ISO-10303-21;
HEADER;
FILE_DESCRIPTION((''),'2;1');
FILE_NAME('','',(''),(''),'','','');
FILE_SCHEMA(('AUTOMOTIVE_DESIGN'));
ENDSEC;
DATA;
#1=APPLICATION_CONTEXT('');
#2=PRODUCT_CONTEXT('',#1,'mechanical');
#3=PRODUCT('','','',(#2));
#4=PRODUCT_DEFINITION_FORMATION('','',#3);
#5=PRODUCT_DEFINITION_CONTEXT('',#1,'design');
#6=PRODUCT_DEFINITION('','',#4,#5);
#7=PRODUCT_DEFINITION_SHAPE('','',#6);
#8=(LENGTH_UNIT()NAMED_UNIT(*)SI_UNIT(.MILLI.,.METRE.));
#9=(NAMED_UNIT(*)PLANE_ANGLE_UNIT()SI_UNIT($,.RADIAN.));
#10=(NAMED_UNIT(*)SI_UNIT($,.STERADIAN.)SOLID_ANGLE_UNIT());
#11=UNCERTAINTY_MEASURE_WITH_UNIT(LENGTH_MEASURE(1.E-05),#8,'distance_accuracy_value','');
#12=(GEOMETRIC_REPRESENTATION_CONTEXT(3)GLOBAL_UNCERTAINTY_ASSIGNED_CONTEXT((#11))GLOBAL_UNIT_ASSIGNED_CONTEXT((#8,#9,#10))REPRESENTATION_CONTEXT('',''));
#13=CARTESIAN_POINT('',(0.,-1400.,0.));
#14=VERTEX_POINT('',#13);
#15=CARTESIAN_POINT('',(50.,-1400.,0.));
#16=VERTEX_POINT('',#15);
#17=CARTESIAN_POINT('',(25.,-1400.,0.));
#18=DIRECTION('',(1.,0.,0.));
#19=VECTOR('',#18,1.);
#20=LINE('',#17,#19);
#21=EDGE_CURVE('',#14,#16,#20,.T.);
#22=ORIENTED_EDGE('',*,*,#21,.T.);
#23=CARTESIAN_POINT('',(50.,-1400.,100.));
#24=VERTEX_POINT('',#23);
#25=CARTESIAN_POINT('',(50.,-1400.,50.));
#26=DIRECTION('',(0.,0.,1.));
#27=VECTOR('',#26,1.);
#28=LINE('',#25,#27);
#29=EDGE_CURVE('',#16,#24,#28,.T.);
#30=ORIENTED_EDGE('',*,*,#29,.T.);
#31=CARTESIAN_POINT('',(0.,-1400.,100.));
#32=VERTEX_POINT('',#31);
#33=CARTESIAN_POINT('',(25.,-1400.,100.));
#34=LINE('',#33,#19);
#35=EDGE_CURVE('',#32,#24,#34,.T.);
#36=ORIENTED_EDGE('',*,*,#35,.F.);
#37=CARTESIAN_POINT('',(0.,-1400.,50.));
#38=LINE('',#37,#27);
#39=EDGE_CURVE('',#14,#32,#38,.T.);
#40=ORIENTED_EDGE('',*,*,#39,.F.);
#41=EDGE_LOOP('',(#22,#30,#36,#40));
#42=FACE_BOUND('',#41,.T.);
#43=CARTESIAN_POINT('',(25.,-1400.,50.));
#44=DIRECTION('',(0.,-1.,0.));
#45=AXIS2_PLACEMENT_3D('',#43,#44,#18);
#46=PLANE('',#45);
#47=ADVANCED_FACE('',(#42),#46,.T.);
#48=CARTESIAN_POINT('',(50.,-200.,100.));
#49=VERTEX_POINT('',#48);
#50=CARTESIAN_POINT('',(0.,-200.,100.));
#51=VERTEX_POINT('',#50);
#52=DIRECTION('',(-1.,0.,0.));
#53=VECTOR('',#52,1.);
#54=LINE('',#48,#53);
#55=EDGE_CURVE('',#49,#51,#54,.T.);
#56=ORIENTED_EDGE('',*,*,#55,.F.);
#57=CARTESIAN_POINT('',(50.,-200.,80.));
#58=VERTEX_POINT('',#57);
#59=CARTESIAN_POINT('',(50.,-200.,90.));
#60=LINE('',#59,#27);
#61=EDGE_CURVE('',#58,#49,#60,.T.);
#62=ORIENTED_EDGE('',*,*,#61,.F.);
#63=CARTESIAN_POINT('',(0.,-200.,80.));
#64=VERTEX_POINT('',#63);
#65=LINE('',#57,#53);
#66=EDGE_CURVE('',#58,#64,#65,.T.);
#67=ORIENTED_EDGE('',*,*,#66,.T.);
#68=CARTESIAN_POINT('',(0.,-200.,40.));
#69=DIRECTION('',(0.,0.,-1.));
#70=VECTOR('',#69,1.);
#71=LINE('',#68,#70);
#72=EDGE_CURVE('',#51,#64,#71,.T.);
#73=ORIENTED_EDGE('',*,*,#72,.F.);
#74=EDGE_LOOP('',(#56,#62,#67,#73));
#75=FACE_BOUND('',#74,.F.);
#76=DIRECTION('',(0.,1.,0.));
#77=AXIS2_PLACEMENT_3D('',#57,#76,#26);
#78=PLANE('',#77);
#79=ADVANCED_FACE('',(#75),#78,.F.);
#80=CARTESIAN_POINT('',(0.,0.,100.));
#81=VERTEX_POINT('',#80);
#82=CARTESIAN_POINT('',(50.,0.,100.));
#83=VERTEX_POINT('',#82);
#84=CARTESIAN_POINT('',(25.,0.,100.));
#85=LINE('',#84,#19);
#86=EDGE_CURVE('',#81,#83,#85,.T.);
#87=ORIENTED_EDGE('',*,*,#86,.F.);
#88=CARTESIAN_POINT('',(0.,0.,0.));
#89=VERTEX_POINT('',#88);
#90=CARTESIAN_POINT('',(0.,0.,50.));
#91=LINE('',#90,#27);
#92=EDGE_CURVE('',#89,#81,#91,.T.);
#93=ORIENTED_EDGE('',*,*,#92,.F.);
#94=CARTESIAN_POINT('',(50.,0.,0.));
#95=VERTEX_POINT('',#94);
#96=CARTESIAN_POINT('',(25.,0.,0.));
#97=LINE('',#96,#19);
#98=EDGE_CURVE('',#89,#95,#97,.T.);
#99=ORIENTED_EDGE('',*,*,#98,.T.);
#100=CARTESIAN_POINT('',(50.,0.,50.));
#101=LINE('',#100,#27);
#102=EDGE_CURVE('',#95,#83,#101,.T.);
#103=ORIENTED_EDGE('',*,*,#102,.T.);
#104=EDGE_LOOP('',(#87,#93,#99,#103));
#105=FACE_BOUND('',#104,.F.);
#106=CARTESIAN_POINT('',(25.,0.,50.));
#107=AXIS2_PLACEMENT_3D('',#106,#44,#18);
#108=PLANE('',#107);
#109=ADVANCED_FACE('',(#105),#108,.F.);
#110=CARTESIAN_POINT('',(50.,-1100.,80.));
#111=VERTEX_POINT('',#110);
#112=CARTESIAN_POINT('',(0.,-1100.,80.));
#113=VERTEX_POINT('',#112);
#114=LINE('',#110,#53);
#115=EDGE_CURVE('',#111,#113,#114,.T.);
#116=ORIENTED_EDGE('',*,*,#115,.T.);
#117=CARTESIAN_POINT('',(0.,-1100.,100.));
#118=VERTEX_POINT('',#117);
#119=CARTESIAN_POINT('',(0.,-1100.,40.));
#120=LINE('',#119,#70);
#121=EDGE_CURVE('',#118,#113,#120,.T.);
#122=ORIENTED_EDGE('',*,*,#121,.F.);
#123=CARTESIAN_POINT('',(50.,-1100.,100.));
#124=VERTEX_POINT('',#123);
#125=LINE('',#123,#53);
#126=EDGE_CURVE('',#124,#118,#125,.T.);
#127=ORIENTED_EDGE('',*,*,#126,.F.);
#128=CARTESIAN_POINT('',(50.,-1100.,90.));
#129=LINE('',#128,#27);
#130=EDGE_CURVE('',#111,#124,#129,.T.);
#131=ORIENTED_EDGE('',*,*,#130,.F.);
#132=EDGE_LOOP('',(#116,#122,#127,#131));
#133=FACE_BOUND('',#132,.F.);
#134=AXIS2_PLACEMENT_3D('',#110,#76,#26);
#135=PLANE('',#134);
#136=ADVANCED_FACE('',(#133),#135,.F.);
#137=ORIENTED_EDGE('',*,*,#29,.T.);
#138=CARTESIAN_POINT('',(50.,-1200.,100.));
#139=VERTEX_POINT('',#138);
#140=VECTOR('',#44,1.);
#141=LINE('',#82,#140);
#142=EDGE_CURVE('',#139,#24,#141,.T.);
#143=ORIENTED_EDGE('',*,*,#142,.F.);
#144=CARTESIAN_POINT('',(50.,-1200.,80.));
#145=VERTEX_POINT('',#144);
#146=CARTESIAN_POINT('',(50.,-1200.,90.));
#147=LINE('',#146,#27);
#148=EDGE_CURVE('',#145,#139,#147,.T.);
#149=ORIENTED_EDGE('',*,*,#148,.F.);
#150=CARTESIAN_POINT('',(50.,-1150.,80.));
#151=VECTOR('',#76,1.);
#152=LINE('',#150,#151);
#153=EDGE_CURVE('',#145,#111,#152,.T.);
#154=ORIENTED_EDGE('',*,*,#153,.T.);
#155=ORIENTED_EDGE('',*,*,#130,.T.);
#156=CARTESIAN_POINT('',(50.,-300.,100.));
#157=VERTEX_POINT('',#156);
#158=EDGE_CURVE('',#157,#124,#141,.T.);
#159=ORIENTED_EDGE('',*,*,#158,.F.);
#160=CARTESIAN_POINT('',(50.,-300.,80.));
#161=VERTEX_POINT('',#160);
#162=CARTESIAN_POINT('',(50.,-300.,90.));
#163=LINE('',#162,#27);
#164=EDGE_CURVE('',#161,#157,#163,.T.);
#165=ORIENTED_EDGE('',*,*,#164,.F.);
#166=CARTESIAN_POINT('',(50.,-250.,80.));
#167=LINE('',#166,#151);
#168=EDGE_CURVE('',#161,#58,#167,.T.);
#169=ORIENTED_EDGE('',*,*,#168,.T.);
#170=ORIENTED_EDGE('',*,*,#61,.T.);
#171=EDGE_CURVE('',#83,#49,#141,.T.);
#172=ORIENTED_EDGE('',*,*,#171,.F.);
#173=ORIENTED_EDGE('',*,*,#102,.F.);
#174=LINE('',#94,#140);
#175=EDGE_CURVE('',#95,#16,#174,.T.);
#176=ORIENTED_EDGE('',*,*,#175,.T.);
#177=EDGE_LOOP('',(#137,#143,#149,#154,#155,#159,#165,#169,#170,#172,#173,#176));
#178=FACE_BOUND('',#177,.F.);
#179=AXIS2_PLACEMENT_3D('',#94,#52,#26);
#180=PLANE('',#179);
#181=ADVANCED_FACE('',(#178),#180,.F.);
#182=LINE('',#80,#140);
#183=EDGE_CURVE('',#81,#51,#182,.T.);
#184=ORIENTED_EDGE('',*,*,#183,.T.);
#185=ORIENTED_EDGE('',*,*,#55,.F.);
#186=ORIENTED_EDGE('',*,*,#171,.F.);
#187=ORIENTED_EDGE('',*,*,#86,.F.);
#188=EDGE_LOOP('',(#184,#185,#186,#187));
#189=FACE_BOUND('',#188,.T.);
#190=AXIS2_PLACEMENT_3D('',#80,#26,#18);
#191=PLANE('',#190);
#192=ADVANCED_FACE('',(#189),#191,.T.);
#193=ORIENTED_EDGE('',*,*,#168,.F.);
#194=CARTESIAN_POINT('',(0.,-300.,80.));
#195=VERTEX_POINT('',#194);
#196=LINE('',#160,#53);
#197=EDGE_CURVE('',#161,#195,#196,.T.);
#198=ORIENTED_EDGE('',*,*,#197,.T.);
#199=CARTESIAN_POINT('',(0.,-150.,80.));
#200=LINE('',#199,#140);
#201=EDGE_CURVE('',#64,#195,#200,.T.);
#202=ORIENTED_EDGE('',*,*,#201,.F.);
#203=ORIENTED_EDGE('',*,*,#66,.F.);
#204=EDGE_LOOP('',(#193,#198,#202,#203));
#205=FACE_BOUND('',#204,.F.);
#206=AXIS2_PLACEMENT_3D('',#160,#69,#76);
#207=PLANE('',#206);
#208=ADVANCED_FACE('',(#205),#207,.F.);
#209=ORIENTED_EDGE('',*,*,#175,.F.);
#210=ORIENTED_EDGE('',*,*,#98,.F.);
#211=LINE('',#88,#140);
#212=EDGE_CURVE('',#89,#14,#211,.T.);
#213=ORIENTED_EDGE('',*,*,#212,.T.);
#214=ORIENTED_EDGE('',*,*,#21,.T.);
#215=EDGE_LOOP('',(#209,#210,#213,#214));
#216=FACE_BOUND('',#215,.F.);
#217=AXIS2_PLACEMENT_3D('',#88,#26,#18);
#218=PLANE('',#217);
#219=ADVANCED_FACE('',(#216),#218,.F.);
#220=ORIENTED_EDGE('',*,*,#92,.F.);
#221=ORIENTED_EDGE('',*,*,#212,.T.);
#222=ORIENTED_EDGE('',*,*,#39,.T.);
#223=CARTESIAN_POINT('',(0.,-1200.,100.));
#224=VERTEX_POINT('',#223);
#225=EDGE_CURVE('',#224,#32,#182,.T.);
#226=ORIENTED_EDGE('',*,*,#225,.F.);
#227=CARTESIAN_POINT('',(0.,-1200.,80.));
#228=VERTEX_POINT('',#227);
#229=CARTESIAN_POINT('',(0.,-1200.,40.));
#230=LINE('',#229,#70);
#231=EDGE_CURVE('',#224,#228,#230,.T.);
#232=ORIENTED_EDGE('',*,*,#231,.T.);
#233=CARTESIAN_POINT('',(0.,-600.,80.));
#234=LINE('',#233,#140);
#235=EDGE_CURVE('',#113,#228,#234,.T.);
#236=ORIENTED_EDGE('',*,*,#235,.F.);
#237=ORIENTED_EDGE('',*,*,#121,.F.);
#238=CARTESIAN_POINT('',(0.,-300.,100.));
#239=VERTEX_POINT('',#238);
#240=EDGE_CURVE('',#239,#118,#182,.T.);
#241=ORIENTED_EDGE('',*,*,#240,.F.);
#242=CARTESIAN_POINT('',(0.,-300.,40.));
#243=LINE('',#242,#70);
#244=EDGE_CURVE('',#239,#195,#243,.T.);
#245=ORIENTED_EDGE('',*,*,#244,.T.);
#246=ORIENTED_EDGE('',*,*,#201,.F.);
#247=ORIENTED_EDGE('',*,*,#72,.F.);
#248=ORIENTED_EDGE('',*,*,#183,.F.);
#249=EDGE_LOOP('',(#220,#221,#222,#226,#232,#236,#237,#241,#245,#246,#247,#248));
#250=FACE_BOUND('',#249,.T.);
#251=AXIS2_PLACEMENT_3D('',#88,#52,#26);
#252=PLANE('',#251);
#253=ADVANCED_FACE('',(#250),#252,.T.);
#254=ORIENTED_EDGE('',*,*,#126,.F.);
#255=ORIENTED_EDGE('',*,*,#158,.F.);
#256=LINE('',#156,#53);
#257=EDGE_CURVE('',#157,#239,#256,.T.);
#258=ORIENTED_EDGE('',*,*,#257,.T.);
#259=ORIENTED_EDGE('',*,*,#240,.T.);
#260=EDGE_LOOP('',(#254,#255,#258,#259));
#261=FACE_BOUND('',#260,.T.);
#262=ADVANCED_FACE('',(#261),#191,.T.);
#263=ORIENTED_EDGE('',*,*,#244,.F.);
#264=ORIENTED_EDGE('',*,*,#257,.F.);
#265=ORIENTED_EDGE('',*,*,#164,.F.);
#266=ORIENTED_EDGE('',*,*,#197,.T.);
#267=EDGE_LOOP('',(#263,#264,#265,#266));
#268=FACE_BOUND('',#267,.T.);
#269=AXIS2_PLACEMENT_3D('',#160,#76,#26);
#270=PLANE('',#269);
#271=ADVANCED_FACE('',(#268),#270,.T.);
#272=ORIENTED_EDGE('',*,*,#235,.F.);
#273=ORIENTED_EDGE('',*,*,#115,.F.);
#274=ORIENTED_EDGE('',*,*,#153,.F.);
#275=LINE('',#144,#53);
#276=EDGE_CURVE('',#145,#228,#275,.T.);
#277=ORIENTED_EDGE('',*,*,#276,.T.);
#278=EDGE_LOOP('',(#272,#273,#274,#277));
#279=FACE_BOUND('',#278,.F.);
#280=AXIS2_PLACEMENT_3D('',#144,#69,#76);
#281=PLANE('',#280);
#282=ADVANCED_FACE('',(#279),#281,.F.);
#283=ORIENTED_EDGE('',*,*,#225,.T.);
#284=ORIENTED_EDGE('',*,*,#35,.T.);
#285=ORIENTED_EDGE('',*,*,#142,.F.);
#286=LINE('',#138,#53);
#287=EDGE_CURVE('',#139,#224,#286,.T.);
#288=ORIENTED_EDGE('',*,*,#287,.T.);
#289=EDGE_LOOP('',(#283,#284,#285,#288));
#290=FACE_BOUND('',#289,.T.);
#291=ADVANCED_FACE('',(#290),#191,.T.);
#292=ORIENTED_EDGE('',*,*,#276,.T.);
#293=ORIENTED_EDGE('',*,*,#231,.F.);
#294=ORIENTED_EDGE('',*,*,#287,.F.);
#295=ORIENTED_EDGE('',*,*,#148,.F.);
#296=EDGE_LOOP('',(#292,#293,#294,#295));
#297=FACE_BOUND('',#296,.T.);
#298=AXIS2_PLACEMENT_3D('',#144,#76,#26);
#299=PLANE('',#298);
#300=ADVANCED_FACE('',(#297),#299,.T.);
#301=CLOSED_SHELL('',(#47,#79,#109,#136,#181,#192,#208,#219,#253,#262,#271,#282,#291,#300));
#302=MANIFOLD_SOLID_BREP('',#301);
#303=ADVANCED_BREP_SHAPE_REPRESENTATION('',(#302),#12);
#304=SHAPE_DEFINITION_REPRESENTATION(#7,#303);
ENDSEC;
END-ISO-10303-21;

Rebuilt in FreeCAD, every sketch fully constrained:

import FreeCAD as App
import Part
import Sketcher
from FreeCAD import Vector

doc = App.newDocument("Part")
body = doc.addObject("PartDesign::Body", "Body")

# Sketch on XZ plane
sketch1 = body.newObject("Sketcher::SketchObject", "Sketch")
sketch1.AttachmentSupport = (doc.getObject("XZ_Plane"), [""])
sketch1.MapMode = "FlatFace"
sketch1.addGeometry(Part.LineSegment(Vector(0, 100, 0), Vector(0, 0, 0)), False)
sketch1.addGeometry(Part.LineSegment(Vector(0, 0, 0), Vector(50, 0, 0)), False)
sketch1.addGeometry(Part.LineSegment(Vector(50, 0, 0), Vector(50, 100, 0)), False)
sketch1.addGeometry(Part.LineSegment(Vector(50, 100, 0), Vector(0, 100, 0)), False)
sketch1.addConstraint(Sketcher.Constraint("Coincident", 0, 2, 1, 1))
sketch1.addConstraint(Sketcher.Constraint("Coincident", 1, 2, 2, 1))
sketch1.addConstraint(Sketcher.Constraint("Coincident", 2, 2, 3, 1))
sketch1.addConstraint(Sketcher.Constraint("Coincident", 3, 2, 0, 1))
sketch1.addConstraint(Sketcher.Constraint("Vertical", 0))
sketch1.addConstraint(Sketcher.Constraint("Horizontal", 1))
sketch1.addConstraint(Sketcher.Constraint("Vertical", 2))
sketch1.addConstraint(Sketcher.Constraint("Horizontal", 3))
sketch1.addConstraint(Sketcher.Constraint("Coincident", 0, 2, -1, 1))
sketch1.addConstraint(Sketcher.Constraint("DistanceX", 1, 1, 1, 2, 50.0))
sketch1.addConstraint(Sketcher.Constraint("DistanceY", 0, 2, 0, 1, 100.0))
pad1 = body.newObject("PartDesign::Pad", "Pad")
pad1.Profile = sketch1
pad1.Length = 1400

# Sketch on YZ plane
sketch2 = body.newObject("Sketcher::SketchObject", "Sketch001")
sketch2.AttachmentSupport = (doc.getObject("YZ_Plane"), [""])
sketch2.MapMode = "FlatFace"
sketch2.AttachmentOffset = App.Placement(Vector(0, 0, 50), App.Rotation())
sketch2.addGeometry(Part.LineSegment(Vector(-300, 100, 0), Vector(-300, 80, 0)), False)
sketch2.addGeometry(Part.LineSegment(Vector(-300, 80, 0), Vector(-200, 80, 0)), False)
sketch2.addGeometry(Part.LineSegment(Vector(-200, 80, 0), Vector(-200, 100, 0)), False)
sketch2.addGeometry(Part.LineSegment(Vector(-200, 100, 0), Vector(-300, 100, 0)), False)
sketch2.addGeometry(Part.LineSegment(Vector(-1200, 100, 0), Vector(-1200, 80, 0)), False)
sketch2.addGeometry(Part.LineSegment(Vector(-1200, 80, 0), Vector(-1100, 80, 0)), False)
sketch2.addGeometry(Part.LineSegment(Vector(-1100, 80, 0), Vector(-1100, 100, 0)), False)
sketch2.addGeometry(Part.LineSegment(Vector(-1100, 100, 0), Vector(-1200, 100, 0)), False)
sketch2.addConstraint(Sketcher.Constraint("Coincident", 0, 2, 1, 1))
sketch2.addConstraint(Sketcher.Constraint("Coincident", 1, 2, 2, 1))
sketch2.addConstraint(Sketcher.Constraint("Coincident", 2, 2, 3, 1))
sketch2.addConstraint(Sketcher.Constraint("Coincident", 3, 2, 0, 1))
sketch2.addConstraint(Sketcher.Constraint("Coincident", 4, 2, 5, 1))
sketch2.addConstraint(Sketcher.Constraint("Coincident", 5, 2, 6, 1))
sketch2.addConstraint(Sketcher.Constraint("Coincident", 6, 2, 7, 1))
sketch2.addConstraint(Sketcher.Constraint("Coincident", 7, 2, 4, 1))
sketch2.addConstraint(Sketcher.Constraint("Vertical", 0))
sketch2.addConstraint(Sketcher.Constraint("Horizontal", 1))
sketch2.addConstraint(Sketcher.Constraint("Vertical", 2))
sketch2.addConstraint(Sketcher.Constraint("Horizontal", 3))
sketch2.addConstraint(Sketcher.Constraint("Vertical", 4))
sketch2.addConstraint(Sketcher.Constraint("Horizontal", 5))
sketch2.addConstraint(Sketcher.Constraint("Vertical", 6))
sketch2.addConstraint(Sketcher.Constraint("Horizontal", 7))
sketch2.addConstraint(Sketcher.Constraint("Horizontal", 1, 2, 4, 2))
sketch2.addConstraint(Sketcher.Constraint("Horizontal", 3, 2, 6, 2))
sketch2.addConstraint(Sketcher.Constraint("Equal", 3, 5))
sketch2.addConstraint(Sketcher.Constraint("DistanceX", 1, 1, 1, 2, 100.0))
sketch2.addConstraint(Sketcher.Constraint("DistanceY", 0, 2, 0, 1, 20.0))
sketch2.addConstraint(Sketcher.Constraint("DistanceX", 0, 2, -1, 1, 300.0))
sketch2.addConstraint(Sketcher.Constraint("DistanceY", -1, 1, 0, 2, 80.0))
sketch2.addConstraint(Sketcher.Constraint("DistanceX", 4, 2, -1, 1, 1200.0))
pocket1 = body.newObject("PartDesign::Pocket", "Pocket")
pocket1.Profile = sketch2
pocket1.Type = "ThroughAll"

doc.recompute()
